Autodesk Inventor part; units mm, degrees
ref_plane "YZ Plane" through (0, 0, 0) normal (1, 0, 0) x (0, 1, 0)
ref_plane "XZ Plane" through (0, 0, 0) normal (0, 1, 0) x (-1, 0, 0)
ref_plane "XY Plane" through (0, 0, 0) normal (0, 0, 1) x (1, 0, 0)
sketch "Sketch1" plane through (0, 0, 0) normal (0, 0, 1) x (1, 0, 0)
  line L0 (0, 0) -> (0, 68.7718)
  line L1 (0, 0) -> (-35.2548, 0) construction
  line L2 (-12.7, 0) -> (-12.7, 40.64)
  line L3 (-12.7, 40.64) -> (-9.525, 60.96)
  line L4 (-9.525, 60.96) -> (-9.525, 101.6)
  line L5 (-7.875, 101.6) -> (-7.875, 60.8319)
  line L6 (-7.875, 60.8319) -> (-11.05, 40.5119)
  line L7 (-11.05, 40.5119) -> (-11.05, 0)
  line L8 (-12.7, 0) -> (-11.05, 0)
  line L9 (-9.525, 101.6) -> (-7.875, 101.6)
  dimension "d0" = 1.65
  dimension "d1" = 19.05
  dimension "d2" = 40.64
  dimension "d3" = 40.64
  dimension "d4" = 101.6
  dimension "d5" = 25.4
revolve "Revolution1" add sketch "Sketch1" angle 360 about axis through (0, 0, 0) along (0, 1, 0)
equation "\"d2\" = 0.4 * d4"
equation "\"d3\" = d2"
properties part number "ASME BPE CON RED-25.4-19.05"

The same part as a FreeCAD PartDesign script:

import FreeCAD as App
import Part
import Sketcher
from FreeCAD import Vector
Q = App.Units.Quantity


def add_polygon(sketch, points):
    """Adds a closed chain of lines whose ends are joined by coincident constraints."""
    first, n = sketch.GeometryCount, len(points)
    for a, b in zip(points, points[1:] + points[:1]):
        sketch.addGeometry(Part.LineSegment(App.Vector(*a, 0), App.Vector(*b, 0)), False)
    for i in range(n):
        sketch.addConstraint(Sketcher.Constraint("Coincident", first + i, 2, first + (i + 1) % n, 1))

doc = App.newDocument("Part")
body = doc.addObject("PartDesign::Body", "Body")

sketch1 = body.newObject("Sketcher::SketchObject", "Sketch")
sketch1.AttachmentSupport = (doc.getObject("XY_Plane"), [""])
sketch1.MapMode = "FlatFace"
add_polygon(sketch1, [(-12.7, 40.64), (-12.7, 0), (-11.05, 0), (-11.05, 40.5119), (-7.875, 60.8319), (-7.875, 101.6), (-9.525, 101.6), (-9.525, 60.96)])
sketch1.addConstraint(Sketcher.Constraint("Vertical", 0))
sketch1.addConstraint(Sketcher.Constraint("Horizontal", 1))
sketch1.addConstraint(Sketcher.Constraint("Vertical", 2))
sketch1.addConstraint(Sketcher.Constraint("Vertical", 4))
sketch1.addConstraint(Sketcher.Constraint("Horizontal", 5))
sketch1.addConstraint(Sketcher.Constraint("Vertical", 6))
sketch1.addConstraint(Sketcher.Constraint("PointOnObject", 0, 2, -1))
sketch1.addConstraint(Sketcher.Constraint("Parallel", 3, 7))
sketch1.addConstraint(Sketcher.Constraint("Equal", 1, 5))
sketch1.addConstraint(Sketcher.Constraint("Equal", 0, 6))
sketch1.addConstraint(Sketcher.Constraint("DistanceY", 0, 2, 0, 1, Q("1.6 in")))
sketch1.addConstraint(Sketcher.Constraint("DistanceY", -1, 1, 4, 2, Q("4 in")))
sketch1.addConstraint(Sketcher.Constraint("DistanceX", 1, 1, 1, 2, 1.65))
sketch1.addConstraint(Sketcher.Constraint("DistanceX", 0, 2, -1, 1, Q("0.5 in")))
sketch1.addConstraint(Sketcher.Constraint("Angle", 3, Q("81.1193 deg")))
sketch1.addConstraint(Sketcher.Constraint("DistanceY", 2, 1, 2, 2, 40.512))
revolution = body.newObject("PartDesign::Revolution", "Revolution")
revolution.Profile = sketch1
revolution.ReferenceAxis = (sketch1, ["V_Axis"])
revolution.Angle = 360

doc.recompute()
